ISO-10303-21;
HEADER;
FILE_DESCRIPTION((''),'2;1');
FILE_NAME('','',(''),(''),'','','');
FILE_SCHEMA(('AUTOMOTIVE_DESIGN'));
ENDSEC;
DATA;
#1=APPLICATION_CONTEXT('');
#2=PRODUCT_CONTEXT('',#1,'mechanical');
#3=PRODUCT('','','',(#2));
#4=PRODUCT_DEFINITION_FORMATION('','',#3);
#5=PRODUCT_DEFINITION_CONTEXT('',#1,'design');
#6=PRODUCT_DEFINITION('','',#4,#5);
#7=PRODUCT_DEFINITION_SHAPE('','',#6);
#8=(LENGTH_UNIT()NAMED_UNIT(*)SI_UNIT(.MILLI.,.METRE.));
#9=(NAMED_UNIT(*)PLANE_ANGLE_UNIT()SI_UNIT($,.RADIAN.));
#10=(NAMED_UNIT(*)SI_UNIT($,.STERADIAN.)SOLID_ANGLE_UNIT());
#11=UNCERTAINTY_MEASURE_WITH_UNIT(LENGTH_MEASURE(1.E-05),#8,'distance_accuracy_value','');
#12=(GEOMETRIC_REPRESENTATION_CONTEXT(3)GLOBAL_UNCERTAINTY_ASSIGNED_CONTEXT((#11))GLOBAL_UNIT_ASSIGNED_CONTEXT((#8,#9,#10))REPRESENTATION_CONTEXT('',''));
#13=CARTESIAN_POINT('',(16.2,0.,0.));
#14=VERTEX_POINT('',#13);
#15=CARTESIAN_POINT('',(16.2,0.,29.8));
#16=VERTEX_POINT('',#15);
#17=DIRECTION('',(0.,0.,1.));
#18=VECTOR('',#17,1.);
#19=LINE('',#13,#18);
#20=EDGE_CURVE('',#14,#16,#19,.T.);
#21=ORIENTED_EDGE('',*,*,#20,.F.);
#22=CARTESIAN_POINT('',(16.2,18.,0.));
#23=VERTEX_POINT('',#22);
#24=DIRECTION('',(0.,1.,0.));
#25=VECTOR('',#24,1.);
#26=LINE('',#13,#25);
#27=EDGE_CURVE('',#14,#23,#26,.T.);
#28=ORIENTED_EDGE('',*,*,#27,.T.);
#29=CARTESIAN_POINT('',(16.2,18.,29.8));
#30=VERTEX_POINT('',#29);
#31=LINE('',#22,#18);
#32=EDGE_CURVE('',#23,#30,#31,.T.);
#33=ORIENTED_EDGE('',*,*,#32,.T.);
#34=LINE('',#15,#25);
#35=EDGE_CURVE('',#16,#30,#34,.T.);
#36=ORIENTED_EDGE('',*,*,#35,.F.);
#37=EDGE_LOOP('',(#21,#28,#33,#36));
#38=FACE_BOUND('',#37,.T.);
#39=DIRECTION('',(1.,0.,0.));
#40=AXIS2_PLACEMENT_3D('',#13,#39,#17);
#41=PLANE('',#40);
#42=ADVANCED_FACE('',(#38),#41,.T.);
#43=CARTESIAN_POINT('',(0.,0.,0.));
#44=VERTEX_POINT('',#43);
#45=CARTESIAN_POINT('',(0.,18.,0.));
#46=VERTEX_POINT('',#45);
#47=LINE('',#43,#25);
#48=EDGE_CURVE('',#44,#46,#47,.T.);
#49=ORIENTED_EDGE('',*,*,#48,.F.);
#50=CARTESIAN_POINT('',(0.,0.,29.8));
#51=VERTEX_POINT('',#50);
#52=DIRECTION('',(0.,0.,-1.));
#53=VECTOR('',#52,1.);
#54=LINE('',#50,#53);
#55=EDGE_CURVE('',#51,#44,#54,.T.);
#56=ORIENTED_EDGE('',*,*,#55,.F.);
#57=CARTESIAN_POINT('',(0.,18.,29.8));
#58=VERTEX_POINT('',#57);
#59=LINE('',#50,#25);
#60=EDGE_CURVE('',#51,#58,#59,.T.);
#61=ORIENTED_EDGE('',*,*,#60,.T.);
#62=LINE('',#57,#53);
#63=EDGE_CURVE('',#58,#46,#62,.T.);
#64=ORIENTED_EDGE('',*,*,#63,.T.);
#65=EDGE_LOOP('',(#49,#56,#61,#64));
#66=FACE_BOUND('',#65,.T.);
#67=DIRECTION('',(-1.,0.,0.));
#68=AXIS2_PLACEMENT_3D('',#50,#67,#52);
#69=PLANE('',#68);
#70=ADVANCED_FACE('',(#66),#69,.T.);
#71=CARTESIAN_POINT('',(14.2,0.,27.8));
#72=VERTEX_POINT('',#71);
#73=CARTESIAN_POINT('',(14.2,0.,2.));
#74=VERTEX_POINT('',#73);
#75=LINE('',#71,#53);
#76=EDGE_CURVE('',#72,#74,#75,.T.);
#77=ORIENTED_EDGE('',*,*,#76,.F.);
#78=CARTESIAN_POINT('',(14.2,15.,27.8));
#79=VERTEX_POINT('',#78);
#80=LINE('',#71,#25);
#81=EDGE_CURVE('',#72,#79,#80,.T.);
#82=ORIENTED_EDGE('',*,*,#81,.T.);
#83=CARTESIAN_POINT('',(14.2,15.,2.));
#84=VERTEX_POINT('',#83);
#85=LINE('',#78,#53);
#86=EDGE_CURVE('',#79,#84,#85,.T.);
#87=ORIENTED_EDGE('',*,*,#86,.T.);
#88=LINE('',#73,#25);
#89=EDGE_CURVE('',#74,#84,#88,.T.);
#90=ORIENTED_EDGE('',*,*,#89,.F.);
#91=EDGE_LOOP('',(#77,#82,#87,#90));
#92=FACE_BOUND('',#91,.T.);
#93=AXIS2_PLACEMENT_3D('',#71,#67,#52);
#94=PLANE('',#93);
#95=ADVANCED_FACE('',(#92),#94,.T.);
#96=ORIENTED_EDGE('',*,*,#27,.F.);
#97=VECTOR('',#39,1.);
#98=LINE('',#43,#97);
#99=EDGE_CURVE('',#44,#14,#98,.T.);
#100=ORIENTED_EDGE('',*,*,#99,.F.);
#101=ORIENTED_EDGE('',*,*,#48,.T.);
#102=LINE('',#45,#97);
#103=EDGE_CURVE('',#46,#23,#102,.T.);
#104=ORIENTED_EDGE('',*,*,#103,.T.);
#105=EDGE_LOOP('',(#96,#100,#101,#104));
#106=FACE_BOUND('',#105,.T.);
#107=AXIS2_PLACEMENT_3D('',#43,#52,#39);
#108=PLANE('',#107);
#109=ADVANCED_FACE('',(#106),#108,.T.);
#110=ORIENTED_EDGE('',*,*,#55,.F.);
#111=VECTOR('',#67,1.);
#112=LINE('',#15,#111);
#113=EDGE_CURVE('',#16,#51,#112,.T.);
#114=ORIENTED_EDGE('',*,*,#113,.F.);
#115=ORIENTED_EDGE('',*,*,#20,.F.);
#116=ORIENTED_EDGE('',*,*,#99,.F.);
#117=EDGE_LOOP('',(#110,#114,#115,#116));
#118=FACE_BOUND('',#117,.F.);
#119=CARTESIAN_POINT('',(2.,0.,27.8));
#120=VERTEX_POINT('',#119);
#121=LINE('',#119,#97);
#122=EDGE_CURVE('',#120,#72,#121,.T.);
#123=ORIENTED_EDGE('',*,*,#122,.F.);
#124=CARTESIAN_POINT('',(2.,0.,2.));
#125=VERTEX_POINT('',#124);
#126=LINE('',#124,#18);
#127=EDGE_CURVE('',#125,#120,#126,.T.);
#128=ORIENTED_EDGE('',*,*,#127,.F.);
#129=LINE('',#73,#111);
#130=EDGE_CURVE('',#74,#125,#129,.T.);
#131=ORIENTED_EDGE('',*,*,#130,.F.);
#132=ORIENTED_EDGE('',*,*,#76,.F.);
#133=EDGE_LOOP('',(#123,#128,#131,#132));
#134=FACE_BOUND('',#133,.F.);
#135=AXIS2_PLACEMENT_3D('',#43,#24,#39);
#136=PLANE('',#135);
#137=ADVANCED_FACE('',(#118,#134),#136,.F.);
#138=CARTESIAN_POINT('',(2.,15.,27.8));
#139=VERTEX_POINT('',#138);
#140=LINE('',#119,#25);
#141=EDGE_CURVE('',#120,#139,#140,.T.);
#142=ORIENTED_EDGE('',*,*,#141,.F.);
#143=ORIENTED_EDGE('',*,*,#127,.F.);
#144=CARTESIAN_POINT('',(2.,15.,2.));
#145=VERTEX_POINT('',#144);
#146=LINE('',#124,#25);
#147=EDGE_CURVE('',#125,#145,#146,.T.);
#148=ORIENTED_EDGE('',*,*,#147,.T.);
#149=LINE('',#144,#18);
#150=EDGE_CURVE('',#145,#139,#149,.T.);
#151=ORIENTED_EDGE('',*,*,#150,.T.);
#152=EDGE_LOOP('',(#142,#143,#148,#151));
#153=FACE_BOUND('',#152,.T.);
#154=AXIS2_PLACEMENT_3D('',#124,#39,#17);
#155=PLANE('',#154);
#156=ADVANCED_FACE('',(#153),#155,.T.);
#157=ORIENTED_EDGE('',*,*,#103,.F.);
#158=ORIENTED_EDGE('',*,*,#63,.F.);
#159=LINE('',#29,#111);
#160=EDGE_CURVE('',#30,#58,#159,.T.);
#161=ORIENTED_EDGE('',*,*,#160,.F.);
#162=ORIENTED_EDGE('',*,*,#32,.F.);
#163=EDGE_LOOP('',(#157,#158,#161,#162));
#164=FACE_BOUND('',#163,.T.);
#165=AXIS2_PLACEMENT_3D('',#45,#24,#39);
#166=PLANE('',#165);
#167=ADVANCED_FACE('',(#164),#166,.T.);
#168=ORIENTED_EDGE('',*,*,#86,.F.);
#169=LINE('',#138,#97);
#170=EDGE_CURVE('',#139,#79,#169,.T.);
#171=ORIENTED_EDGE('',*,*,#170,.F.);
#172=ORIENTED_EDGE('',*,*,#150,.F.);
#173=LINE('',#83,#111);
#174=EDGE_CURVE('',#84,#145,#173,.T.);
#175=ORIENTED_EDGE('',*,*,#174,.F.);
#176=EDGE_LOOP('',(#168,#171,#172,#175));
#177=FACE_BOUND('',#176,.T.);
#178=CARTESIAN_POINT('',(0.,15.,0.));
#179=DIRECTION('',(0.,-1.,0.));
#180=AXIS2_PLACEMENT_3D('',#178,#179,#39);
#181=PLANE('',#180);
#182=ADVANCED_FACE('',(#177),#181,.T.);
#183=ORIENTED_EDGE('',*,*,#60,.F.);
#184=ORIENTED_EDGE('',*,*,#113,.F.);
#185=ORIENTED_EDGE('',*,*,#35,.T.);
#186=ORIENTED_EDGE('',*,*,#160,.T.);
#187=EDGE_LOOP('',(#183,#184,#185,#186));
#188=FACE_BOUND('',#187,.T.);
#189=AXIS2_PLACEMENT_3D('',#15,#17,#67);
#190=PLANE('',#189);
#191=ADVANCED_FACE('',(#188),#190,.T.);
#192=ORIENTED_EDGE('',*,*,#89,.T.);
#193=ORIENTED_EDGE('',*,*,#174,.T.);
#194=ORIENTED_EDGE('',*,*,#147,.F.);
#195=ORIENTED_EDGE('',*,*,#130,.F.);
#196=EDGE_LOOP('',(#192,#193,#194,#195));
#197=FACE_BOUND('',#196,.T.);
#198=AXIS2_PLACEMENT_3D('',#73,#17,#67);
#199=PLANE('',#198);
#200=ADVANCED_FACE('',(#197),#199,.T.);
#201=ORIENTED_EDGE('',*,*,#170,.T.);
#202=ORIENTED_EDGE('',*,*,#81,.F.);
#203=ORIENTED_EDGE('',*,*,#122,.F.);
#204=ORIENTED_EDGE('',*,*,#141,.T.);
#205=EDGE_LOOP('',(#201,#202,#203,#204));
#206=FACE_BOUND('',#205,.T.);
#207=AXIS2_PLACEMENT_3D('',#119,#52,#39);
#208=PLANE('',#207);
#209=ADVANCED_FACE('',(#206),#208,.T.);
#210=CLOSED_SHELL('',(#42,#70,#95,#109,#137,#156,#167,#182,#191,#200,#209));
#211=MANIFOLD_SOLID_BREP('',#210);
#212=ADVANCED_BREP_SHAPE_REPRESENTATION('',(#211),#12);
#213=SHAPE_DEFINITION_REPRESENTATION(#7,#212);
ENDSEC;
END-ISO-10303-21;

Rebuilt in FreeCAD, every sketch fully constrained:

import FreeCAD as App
import Part
import Sketcher

V = App.Vector
Q = App.Units.Quantity


def add_polygon(sketch, points):
    """Adds a closed chain of lines whose ends are joined by coincident constraints."""
    first, n = sketch.GeometryCount, len(points)
    for a, b in zip(points, points[1:] + points[:1]):
        sketch.addGeometry(Part.LineSegment(App.Vector(*a, 0), App.Vector(*b, 0)), False)
    for i in range(n):
        sketch.addConstraint(Sketcher.Constraint("Coincident", first + i, 2, first + (i + 1) % n, 1))

doc = App.newDocument("Part")
body = doc.addObject("PartDesign::Body", "Body")

# Sketch on XZ plane
sketch1 = body.newObject("Sketcher::SketchObject", "Sketch")
sketch1.AttachmentSupport = (doc.getObject("XZ_Plane"), [""])
sketch1.MapMode = "FlatFace"
add_polygon(sketch1, [(16, 0), (0, 0), (0, 30), (16, 30)])  # lines 0-3
sketch1.addConstraint(Sketcher.Constraint("Horizontal", 0))
sketch1.addConstraint(Sketcher.Constraint("Vertical", 1))
sketch1.addConstraint(Sketcher.Constraint("Horizontal", 2))
sketch1.addConstraint(Sketcher.Constraint("Vertical", 3))
sketch1.addConstraint(Sketcher.Constraint("Coincident", 0, 2, -1, 1))
sketch1.addConstraint(Sketcher.Constraint("DistanceX", 0, 2, 0, 1, Q("16.2 mm")))
sketch1.addConstraint(Sketcher.Constraint("DistanceY", 1, 1, 1, 2, Q("29.8 mm")))
pad1 = body.newObject("PartDesign::Pad", "Pad")
pad1.Profile = sketch1
pad1.Length = 18
pad1.Reversed = True

# Sketch on XZ plane
sketch2 = body.newObject("Sketcher::SketchObject", "Sketch001")
sketch2.AttachmentSupport = (doc.getObject("XZ_Plane"), [""])
sketch2.MapMode = "FlatFace"
add_polygon(sketch2, [(14, 28), (2, 28), (2, 2), (14, 2)])  # lines 0-3
sketch2.addConstraint(Sketcher.Constraint("Horizontal", 0))
sketch2.addConstraint(Sketcher.Constraint("Vertical", 1))
sketch2.addConstraint(Sketcher.Constraint("Horizontal", 2))
sketch2.addConstraint(Sketcher.Constraint("Vertical", 3))
sketch2.addConstraint(Sketcher.Constraint("DistanceX", 0, 2, 0, 1, Q("12.2 mm")))
sketch2.addConstraint(Sketcher.Constraint("DistanceY", 1, 2, 1, 1, Q("25.8 mm")))
sketch2.addConstraint(Sketcher.Constraint("DistanceX", -1, 1, 0, 2, Q("2 mm")))
sketch2.addConstraint(Sketcher.Constraint("DistanceY", -1, 1, 1, 2, Q("2 mm")))
pocket1 = body.newObject("PartDesign::Pocket", "Pocket")
pocket1.Profile = sketch2
pocket1.Length = 15

doc.recompute()
